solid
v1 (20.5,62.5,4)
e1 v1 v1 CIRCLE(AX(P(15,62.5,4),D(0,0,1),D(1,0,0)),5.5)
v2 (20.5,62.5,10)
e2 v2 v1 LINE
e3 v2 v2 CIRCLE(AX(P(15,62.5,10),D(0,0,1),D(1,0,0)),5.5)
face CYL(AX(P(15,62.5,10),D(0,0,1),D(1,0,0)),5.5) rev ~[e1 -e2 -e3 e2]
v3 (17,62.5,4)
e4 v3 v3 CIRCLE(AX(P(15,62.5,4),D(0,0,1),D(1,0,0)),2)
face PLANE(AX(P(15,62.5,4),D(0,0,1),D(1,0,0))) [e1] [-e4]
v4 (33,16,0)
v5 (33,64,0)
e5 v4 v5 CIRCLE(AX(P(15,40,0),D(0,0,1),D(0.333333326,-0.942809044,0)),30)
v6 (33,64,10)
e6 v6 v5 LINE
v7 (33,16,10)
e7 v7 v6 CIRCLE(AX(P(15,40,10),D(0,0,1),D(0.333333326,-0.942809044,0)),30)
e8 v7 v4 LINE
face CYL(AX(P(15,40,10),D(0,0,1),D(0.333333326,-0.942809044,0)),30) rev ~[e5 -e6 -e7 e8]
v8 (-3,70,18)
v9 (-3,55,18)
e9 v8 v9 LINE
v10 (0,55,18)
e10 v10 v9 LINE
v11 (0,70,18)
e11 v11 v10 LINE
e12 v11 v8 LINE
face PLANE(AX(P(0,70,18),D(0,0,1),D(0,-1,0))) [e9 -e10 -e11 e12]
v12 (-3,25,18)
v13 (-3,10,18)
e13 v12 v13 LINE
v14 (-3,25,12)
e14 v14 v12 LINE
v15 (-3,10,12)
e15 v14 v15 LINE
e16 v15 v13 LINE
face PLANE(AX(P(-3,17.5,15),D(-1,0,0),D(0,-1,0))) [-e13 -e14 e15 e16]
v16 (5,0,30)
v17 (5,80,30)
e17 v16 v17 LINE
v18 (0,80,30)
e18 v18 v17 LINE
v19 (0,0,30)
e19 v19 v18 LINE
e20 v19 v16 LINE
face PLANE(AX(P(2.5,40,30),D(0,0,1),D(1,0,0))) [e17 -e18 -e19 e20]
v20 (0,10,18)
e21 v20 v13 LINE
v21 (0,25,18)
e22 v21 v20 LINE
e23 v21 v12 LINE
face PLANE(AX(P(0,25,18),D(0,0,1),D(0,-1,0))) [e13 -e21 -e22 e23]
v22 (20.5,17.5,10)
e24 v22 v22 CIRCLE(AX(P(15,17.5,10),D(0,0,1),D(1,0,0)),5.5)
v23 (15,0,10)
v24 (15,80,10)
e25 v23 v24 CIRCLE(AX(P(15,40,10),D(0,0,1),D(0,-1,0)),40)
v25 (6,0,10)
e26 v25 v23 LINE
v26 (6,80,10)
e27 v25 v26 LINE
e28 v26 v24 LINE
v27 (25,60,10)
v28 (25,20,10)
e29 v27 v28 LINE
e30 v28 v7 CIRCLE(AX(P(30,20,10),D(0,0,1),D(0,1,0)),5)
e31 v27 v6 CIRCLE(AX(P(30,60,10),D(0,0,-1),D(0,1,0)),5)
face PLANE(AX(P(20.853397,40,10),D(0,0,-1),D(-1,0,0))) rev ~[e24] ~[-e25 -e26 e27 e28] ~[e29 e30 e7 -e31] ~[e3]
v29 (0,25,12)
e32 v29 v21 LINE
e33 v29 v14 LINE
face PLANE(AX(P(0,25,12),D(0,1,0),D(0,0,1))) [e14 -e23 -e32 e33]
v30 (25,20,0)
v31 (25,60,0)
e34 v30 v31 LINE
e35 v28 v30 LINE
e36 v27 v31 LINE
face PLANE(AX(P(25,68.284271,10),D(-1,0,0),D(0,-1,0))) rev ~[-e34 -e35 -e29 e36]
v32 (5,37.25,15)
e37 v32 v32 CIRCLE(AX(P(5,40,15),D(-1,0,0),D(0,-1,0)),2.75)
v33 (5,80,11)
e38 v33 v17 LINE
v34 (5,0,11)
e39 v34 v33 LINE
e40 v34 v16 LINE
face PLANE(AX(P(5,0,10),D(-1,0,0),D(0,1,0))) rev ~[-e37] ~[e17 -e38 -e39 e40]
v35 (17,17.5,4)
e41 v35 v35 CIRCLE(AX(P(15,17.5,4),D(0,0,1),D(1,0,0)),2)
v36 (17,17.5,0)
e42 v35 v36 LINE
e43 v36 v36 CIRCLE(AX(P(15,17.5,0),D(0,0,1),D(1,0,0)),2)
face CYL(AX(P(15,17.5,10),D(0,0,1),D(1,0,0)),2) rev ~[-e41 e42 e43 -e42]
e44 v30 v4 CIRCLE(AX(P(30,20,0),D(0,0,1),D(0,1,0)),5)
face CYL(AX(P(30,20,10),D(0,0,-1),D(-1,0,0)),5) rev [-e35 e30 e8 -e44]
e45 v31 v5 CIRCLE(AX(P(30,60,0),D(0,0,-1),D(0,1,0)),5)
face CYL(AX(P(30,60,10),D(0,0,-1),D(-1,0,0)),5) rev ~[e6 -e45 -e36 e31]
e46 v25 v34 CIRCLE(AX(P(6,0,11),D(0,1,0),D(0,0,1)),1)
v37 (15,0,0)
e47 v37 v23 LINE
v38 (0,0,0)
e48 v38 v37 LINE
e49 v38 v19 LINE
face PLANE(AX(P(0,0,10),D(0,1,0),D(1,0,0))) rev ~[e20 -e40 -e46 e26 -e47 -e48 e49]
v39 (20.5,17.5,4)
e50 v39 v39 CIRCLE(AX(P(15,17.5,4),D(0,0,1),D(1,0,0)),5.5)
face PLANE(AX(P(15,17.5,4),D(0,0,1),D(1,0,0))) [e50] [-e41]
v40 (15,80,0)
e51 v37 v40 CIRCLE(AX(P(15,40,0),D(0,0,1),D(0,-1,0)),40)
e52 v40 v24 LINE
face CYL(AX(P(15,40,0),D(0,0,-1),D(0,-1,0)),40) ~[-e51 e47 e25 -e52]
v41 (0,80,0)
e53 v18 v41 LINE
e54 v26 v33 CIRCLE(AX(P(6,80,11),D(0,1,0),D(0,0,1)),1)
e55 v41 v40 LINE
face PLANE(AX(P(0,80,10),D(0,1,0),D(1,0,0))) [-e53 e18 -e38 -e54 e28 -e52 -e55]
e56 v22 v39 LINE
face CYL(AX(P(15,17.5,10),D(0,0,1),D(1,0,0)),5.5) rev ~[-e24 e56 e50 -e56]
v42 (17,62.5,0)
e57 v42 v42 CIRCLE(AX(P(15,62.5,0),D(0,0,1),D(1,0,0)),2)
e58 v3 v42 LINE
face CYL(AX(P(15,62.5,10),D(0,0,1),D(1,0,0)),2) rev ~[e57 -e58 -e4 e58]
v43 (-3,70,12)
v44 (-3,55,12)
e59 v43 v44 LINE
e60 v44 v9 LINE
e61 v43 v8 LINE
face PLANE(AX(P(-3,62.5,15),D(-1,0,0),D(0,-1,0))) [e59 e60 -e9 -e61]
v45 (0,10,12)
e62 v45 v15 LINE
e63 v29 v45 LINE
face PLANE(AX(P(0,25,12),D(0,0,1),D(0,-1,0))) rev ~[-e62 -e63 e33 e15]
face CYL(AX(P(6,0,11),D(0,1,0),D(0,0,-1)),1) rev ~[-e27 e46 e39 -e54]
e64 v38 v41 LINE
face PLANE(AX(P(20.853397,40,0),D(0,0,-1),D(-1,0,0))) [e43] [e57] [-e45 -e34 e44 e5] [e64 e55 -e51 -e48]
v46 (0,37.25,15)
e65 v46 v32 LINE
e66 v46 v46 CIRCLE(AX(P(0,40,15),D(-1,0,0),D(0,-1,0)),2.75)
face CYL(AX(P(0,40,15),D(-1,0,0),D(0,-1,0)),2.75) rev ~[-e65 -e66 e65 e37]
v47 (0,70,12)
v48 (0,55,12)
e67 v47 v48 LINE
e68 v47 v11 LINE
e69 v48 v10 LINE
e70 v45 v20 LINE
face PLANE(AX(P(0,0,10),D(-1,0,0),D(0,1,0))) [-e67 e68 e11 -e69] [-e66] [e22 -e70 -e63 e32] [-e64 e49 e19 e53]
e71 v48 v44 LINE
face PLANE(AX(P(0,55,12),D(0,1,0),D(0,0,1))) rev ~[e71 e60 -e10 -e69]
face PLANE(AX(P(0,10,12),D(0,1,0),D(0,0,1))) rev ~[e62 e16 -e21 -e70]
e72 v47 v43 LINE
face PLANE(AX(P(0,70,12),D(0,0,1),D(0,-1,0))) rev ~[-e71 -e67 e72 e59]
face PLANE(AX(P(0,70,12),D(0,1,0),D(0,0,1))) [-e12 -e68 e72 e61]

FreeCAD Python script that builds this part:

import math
import FreeCAD as App
import Part
import Sketcher

V = App.Vector


def edges_at(feature, points):
    """Names of the edges that pass closest to the given points."""
    edges = feature.Shape.Edges
    near = lambda p: min(range(len(edges)), key=lambda i: edges[i].distToShape(Part.Vertex(*p))[0])
    return sorted({f"Edge{near(p) + 1}" for p in points})


def add_polygon(sketch, points):
    """Adds a closed chain of lines whose ends are joined by coincident constraints."""
    first, n = sketch.GeometryCount, len(points)
    for a, b in zip(points, points[1:] + points[:1]):
        sketch.addGeometry(Part.LineSegment(App.Vector(*a, 0), App.Vector(*b, 0)), False)
    for i in range(n):
        sketch.addConstraint(Sketcher.Constraint("Coincident", first + i, 2, first + (i + 1) % n, 1))

doc = App.newDocument("Part")
params = doc.addObject("Spreadsheet::Sheet", "Params")
for row, (alias, value) in enumerate([
    ("sketch1_radius", "40 mm"),
    ("sketch1_width", "15 mm"),
    ("pad1_length", "10 mm"),
    ("sketch2_diameter", "4 mm"),
    ("sketch3_diameter", "11 mm"),
    ("pocket2_length", "6 mm"),
    ("sketch4_width", "5 mm"),
    ("sketch4_height", "80 mm"),
    ("pad2_length", "20 mm"),
    ("sketch5_width", "15 mm"),
    ("sketch5_height", "6 mm"),
    ("pad3_length", "3 mm"),
    ("sketch6_radius", "30 mm"),
    ("sketch7_diameter", "5.5 mm"),
    ("fillet_radius", "5 mm"),
    ("fillet2_radius", "1 mm"),
], start=1):
    params.set(f"A{row}", alias)
    params.set(f"B{row}", "=" + value)
    params.setAlias(f"B{row}", alias)

body = doc.addObject("PartDesign::Body", "Body")

# Sketch on XY plane
sketch1 = doc.addObject("Sketcher::SketchObject", "Sketch")
body.addObject(sketch1)
sketch1.AttachmentSupport = (doc.XY_Plane, [""])
sketch1.MapMode = "FlatFace"
sketch1.addGeometry(Part.LineSegment(V(0, 80, 0), V(0, 0, 0)), False)
sketch1.addGeometry(Part.LineSegment(V(0, 0, 0), V(15, 0, 0)), False)
sketch1.addGeometry(Part.ArcOfCircle(Part.Circle(V(15, 40, 0), V(0, 0, 1), 40), math.radians(-90), math.radians(90)), False)
sketch1.addGeometry(Part.LineSegment(V(15, 80, 0), V(0, 80, 0)), False)
sketch1.addConstraint(Sketcher.Constraint("Coincident", 0, 2, 1, 1))
sketch1.addConstraint(Sketcher.Constraint("Tangent", 1, 2, 2, 1))
sketch1.addConstraint(Sketcher.Constraint("Tangent", 2, 2, 3, 1))
sketch1.addConstraint(Sketcher.Constraint("Coincident", 3, 2, 0, 1))
sketch1.addConstraint(Sketcher.Constraint("Vertical", 0))
sketch1.addConstraint(Sketcher.Constraint("Horizontal", 1))
sketch1.addConstraint(Sketcher.Constraint("Horizontal", 3))
sketch1.addConstraint(Sketcher.Constraint("Coincident", 0, 2, -1, 1))
sketch1.addConstraint(Sketcher.Constraint("Radius", 2, 40.0))
sketch1.addConstraint(Sketcher.Constraint("DistanceX", 1, 1, 1, 2, 15.0))
sketch1.setExpression("Constraints[8]", "Params.sketch1_radius")
sketch1.setExpression("Constraints[9]", "Params.sketch1_width")
pad1 = doc.addObject("PartDesign::Pad", "Pad")
body.addObject(pad1)
pad1.Profile = sketch1
pad1.setExpression("Length", "Params.pad1_length")

# Sketch on XY plane
sketch2 = doc.addObject("Sketcher::SketchObject", "Sketch001")
body.addObject(sketch2)
sketch2.AttachmentSupport = (doc.XY_Plane, [""])
sketch2.MapMode = "FlatFace"
sketch2.AttachmentOffset = App.Placement(V(0, 0, 10), App.Rotation())
sketch2.addGeometry(Part.Circle(V(15, 62.5, 0), V(0, 0, 1), 2), False)
sketch2.addGeometry(Part.Circle(V(15, 17.5, 0), V(0, 0, 1), 2), False)
sketch2.addConstraint(Sketcher.Constraint("Equal", 0, 1))
sketch2.addConstraint(Sketcher.Constraint("Vertical", 0, 3, 1, 3))
sketch2.addConstraint(Sketcher.Constraint("Diameter", 0, 4.0))
sketch2.addConstraint(Sketcher.Constraint("DistanceX", -1, 1, 0, 3, 15.0))
sketch2.addConstraint(Sketcher.Constraint("DistanceY", 1, 3, 0, 3, 45.0))
sketch2.addConstraint(Sketcher.Constraint("DistanceY", -1, 1, 0, 3, 62.5))
sketch2.setExpression("Constraints[2]", "Params.sketch2_diameter")
pocket1 = doc.addObject("PartDesign::Pocket", "Pocket")
body.addObject(pocket1)
pocket1.Profile = sketch2
pocket1.Type = "ThroughAll"

# Sketch on XY plane
sketch3 = doc.addObject("Sketcher::SketchObject", "Sketch002")
body.addObject(sketch3)
sketch3.AttachmentSupport = (doc.XY_Plane, [""])
sketch3.MapMode = "FlatFace"
sketch3.AttachmentOffset = App.Placement(V(0, 0, 10), App.Rotation())
sketch3.addGeometry(Part.Circle(V(15, 62, 0), V(0, 0, 1), 6), False)
sketch3.addGeometry(Part.Circle(V(15, 18, 0), V(0, 0, 1), 6), False)
sketch3.addConstraint(Sketcher.Constraint("Equal", 0, 1))
sketch3.addConstraint(Sketcher.Constraint("Vertical", 0, 3, 1, 3))
sketch3.addConstraint(Sketcher.Constraint("Diameter", 0, 11.0))
sketch3.addConstraint(Sketcher.Constraint("DistanceX", -1, 1, 0, 3, 15.0))
sketch3.addConstraint(Sketcher.Constraint("DistanceY", 1, 3, 0, 3, 45.0))
sketch3.addConstraint(Sketcher.Constraint("DistanceY", -1, 1, 0, 3, 62.5))
sketch3.setExpression("Constraints[2]", "Params.sketch3_diameter")
pocket2 = doc.addObject("PartDesign::Pocket", "Pocket001")
body.addObject(pocket2)
pocket2.Profile = sketch3
pocket2.setExpression("Length", "Params.pocket2_length")

# Sketch on XY plane
sketch4 = doc.addObject("Sketcher::SketchObject", "Sketch003")
body.addObject(sketch4)
sketch4.AttachmentSupport = (doc.XY_Plane, [""])
sketch4.MapMode = "FlatFace"
sketch4.AttachmentOffset = App.Placement(V(0, 0, 10), App.Rotation())
add_polygon(sketch4, [(0, 80), (0, 0), (5, 0), (5, 80)])  # lines 0-3
sketch4.addConstraint(Sketcher.Constraint("Vertical", 0))
sketch4.addConstraint(Sketcher.Constraint("Horizontal", 1))
sketch4.addConstraint(Sketcher.Constraint("Vertical", 2))
sketch4.addConstraint(Sketcher.Constraint("Horizontal", 3))
sketch4.addConstraint(Sketcher.Constraint("Coincident", 0, 2, -1, 1))
sketch4.addConstraint(Sketcher.Constraint("DistanceX", 1, 1, 1, 2, 5.0))
sketch4.addConstraint(Sketcher.Constraint("DistanceY", 0, 2, 0, 1, 80.0))
sketch4.setExpression("Constraints[9]", "Params.sketch4_width")
sketch4.setExpression("Constraints[10]", "Params.sketch4_height")
pad2 = doc.addObject("PartDesign::Pad", "Pad001")
body.addObject(pad2)
pad2.Profile = sketch4
pad2.setExpression("Length", "Params.pad2_length")

# Sketch on YZ plane
sketch5 = doc.addObject("Sketcher::SketchObject", "Sketch004")
body.addObject(sketch5)
sketch5.AttachmentSupport = (doc.YZ_Plane, [""])
sketch5.MapMode = "FlatFace"
add_polygon(sketch5, [(70, 18), (70, 12), (55, 12), (55, 18)])  # lines 0-3
add_polygon(sketch5, [(25, 18), (25, 12), (10, 12), (10, 18)])  # lines 4-7
sketch5.addConstraint(Sketcher.Constraint("Vertical", 0))
sketch5.addConstraint(Sketcher.Constraint("Horizontal", 1))
sketch5.addConstraint(Sketcher.Constraint("Vertical", 2))
sketch5.addConstraint(Sketcher.Constraint("Horizontal", 3))
sketch5.addConstraint(Sketcher.Constraint("Vertical", 4))
sketch5.addConstraint(Sketcher.Constraint("Horizontal", 5))
sketch5.addConstraint(Sketcher.Constraint("Vertical", 6))
sketch5.addConstraint(Sketcher.Constraint("Horizontal", 7))
sketch5.addConstraint(Sketcher.Constraint("Horizontal", 1, 2, 4, 2))
sketch5.addConstraint(Sketcher.Constraint("Horizontal", 3, 2, 6, 2))
sketch5.addConstraint(Sketcher.Constraint("Equal", 3, 5))
sketch5.addConstraint(Sketcher.Constraint("DistanceX", 1, 2, 1, 1, 15.0))
sketch5.addConstraint(Sketcher.Constraint("DistanceY", 0, 2, 0, 1, 6.0))
sketch5.addConstraint(Sketcher.Constraint("DistanceX", -1, 1, 0, 2, 70.0))
sketch5.addConstraint(Sketcher.Constraint("DistanceY", -1, 1, 0, 2, 12.0))
sketch5.addConstraint(Sketcher.Constraint("DistanceX", -1, 1, 4, 2, 25.0))
sketch5.setExpression("Constraints[19]", "Params.sketch5_width")
sketch5.setExpression("Constraints[20]", "Params.sketch5_height")
pad3 = doc.addObject("PartDesign::Pad", "Pad002")
body.addObject(pad3)
pad3.Profile = sketch5
pad3.setExpression("Length", "Params.pad3_length")
pad3.Reversed = True

# Sketch on XY plane
sketch6 = doc.addObject("Sketcher::SketchObject", "Sketch005")
body.addObject(sketch6)
sketch6.AttachmentSupport = (doc.XY_Plane, [""])
sketch6.MapMode = "FlatFace"
sketch6.AttachmentOffset = App.Placement(V(0, 0, 10), App.Rotation())
sketch6.addGeometry(Part.ArcOfCircle(Part.Circle(V(15, 40, 0), V(0, 0, 1), 30), math.radians(-71), math.radians(71)), False)
sketch6.addGeometry(Part.LineSegment(V(25, 68, 0), V(25, 12, 0)), False)
sketch6.addConstraint(Sketcher.Constraint("Coincident", 0, 1, 1, 2))
sketch6.addConstraint(Sketcher.Constraint("Coincident", 1, 1, 0, 2))
sketch6.addConstraint(Sketcher.Constraint("Vertical", 1))
sketch6.addConstraint(Sketcher.Constraint("Radius", 0, 30.0))
sketch6.addConstraint(Sketcher.Constraint("DistanceX", -1, 1, 0, 3, 15.0))
sketch6.addConstraint(Sketcher.Constraint("DistanceY", -1, 1, 0, 3, 40.0))
sketch6.addConstraint(Sketcher.Constraint("DistanceX", -1, 1, 0, 1, 25.0))
sketch6.setExpression("Constraints[3]", "Params.sketch6_radius")
pocket3 = doc.addObject("PartDesign::Pocket", "Pocket002")
body.addObject(pocket3)
pocket3.Profile = sketch6
pocket3.Type = "ThroughAll"

# Sketch on YZ plane
sketch7 = doc.addObject("Sketcher::SketchObject", "Sketch006")
body.addObject(sketch7)
sketch7.AttachmentSupport = (doc.YZ_Plane, [""])
sketch7.MapMode = "FlatFace"
sketch7.addGeometry(Part.Circle(V(40, 15, 0), V(0, 0, 1), 2.8), False)
sketch7.addConstraint(Sketcher.Constraint("Diameter", 0, 5.5))
sketch7.addConstraint(Sketcher.Constraint("DistanceX", -1, 1, 0, 3, 40.0))
sketch7.addConstraint(Sketcher.Constraint("DistanceY", -1, 1, 0, 3, 15.0))
sketch7.setExpression("Constraints[0]", "Params.sketch7_diameter")
pocket4 = doc.addObject("PartDesign::Pocket", "Pocket003")
body.addObject(pocket4)
pocket4.Profile = sketch7
pocket4.Type = "ThroughAll"
pocket4.Reversed = True
doc.recompute()

fillet = doc.addObject("PartDesign::Fillet", "Fillet")
body.addObject(fillet)
fillet.Base = (pocket4, edges_at(pocket4, [(25, 68.284, 5), (25, 11.716, 5)]))
fillet.setExpression("Radius", "Params.fillet_radius")
doc.recompute()

fillet2 = doc.addObject("PartDesign::Fillet", "Fillet001")
body.addObject(fillet2)
fillet2.Base = (fillet, edges_at(fillet, [(5, 40, 10)]))
fillet2.setExpression("Radius", "Params.fillet2_radius")

doc.recompute()
